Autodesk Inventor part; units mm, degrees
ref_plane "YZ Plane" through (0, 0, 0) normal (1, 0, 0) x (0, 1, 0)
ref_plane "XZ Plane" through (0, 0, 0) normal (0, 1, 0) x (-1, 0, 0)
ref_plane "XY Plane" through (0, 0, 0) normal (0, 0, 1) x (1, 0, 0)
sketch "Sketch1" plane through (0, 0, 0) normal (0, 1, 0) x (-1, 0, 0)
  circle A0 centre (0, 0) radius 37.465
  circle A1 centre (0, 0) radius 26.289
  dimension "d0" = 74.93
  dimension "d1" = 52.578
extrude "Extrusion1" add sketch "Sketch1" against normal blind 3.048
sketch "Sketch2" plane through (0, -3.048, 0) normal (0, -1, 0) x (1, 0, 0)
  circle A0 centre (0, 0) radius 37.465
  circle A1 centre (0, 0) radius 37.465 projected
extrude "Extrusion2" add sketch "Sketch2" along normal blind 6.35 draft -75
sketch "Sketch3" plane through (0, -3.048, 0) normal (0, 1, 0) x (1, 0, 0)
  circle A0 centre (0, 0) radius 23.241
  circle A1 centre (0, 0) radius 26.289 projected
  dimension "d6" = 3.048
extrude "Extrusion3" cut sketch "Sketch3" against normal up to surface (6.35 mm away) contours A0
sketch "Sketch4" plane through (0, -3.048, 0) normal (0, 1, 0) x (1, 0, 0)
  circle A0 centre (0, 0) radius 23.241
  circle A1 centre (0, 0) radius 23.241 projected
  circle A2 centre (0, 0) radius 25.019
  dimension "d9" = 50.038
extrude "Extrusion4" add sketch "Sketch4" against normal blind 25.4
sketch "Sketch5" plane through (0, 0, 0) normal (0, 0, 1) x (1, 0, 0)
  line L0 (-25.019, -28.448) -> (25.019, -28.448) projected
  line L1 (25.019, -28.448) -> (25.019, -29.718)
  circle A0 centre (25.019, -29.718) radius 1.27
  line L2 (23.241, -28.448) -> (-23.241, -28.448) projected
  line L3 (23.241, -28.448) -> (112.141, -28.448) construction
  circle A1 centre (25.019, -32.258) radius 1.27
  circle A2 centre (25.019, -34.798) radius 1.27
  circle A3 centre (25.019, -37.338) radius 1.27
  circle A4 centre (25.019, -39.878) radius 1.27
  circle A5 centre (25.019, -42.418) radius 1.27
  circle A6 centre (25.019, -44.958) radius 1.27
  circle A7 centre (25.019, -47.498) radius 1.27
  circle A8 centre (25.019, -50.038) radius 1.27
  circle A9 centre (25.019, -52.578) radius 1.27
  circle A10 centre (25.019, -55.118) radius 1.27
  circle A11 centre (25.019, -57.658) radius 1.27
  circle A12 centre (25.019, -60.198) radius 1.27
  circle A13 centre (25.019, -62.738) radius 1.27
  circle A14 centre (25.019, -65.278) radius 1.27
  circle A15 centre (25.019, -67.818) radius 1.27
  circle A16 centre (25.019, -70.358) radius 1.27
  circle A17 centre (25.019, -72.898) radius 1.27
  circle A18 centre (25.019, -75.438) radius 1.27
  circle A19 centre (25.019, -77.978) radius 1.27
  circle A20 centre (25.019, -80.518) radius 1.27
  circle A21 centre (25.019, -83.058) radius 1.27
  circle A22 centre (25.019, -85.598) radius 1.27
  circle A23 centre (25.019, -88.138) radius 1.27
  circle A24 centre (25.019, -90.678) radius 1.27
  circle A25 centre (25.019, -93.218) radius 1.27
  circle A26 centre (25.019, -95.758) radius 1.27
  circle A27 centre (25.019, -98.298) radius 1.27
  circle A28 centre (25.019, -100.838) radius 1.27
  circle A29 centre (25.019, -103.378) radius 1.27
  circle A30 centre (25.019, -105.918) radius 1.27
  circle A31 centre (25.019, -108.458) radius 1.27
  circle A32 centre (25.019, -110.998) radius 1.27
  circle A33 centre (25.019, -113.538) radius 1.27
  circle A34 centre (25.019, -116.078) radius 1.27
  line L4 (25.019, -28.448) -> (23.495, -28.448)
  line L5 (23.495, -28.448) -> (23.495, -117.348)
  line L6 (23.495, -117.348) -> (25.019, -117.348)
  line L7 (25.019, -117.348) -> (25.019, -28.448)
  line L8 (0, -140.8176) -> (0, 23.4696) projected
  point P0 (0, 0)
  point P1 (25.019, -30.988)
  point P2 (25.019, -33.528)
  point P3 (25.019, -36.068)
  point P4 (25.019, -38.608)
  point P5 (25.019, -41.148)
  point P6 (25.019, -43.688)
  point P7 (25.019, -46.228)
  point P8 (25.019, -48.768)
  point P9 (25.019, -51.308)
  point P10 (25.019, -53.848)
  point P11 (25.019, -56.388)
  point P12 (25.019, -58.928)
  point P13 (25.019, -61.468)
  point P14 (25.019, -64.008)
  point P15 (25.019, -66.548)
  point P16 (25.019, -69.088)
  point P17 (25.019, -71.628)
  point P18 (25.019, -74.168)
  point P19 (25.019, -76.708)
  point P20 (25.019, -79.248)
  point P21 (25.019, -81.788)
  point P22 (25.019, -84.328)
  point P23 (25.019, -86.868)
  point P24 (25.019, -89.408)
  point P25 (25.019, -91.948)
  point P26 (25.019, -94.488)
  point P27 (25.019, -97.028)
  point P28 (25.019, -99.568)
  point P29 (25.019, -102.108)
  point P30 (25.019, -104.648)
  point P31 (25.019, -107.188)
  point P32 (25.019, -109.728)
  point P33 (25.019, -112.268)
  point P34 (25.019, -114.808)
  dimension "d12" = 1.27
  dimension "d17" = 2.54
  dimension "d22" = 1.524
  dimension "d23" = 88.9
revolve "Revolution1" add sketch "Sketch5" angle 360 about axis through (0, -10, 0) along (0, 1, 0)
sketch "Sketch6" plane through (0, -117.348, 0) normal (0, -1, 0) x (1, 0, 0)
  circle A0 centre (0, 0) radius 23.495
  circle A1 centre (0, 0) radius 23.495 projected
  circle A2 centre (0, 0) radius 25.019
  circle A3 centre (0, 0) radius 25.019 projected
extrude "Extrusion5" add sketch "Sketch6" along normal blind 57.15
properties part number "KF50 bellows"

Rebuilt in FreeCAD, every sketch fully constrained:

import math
import FreeCAD as App
import Part
import Sketcher
Q = App.Units.Quantity

doc = App.newDocument("Part")
params = doc.addObject("Spreadsheet::Sheet", "Params")
for row, (alias, value) in enumerate([
    ("sketch1_diameter", "2.95 in"),
    ("sketch1_diameter2", "2.07 in"),
    ("pad1_length", "0.12 in"),
    ("sketch2_diameter", "2.95 in"),
    ("pad2_length", "0.25 in"),
    ("pad2_taper", "-75 deg"),
    ("sketch3_diameter", "1.83 in"),
    ("pocket1_length", "0.25 in"),
    ("sketch4_diameter", "1.97 in"),
    ("sketch4_diameter2", "1.83 in"),
    ("pad3_length", "1 in"),
    ("sketch5_radius", "0.05 in"),
    ("sketch5_width", "0.06 in"),
    ("revolution_angle", "360 deg"),
    ("sketch6_diameter", "1.97 in"),
    ("sketch6_diameter2", "1.85 in"),
    ("pad4_length", "2.25 in"),
], start=1):
    params.set(f"A{row}", alias)
    params.set(f"B{row}", "=" + value)
    params.setAlias(f"B{row}", alias)

body = doc.addObject("PartDesign::Body", "Body")

# Sketch on XZ plane
sketch1 = doc.addObject("Sketcher::SketchObject", "Sketch")
body.addObject(sketch1)
sketch1.AttachmentSupport = (doc.XZ_Plane, [""])
sketch1.MapMode = "FlatFace"
sketch1.addGeometry(Part.Circle(App.Vector(0, 0, 0), App.Vector(0, 0, 1), 37.465), False)
sketch1.addGeometry(Part.Circle(App.Vector(0, 0, 0), App.Vector(0, 0, 1), 26.289), False)
sketch1.addConstraint(Sketcher.Constraint("Coincident", 0, 3, -1, 1))
sketch1.addConstraint(Sketcher.Constraint("Coincident", 1, 3, -1, 1))
sketch1.addConstraint(Sketcher.Constraint("Diameter", 0, Q("2.95 in")))
sketch1.addConstraint(Sketcher.Constraint("Diameter", 1, Q("2.07 in")))
sketch1.setExpression("Constraints[2]", "Params.sketch1_diameter")
sketch1.setExpression("Constraints[3]", "Params.sketch1_diameter2")
pad1 = doc.addObject("PartDesign::Pad", "Pad")
body.addObject(pad1)
pad1.Profile = sketch1
pad1.setExpression("Length", "Params.pad1_length")

# Sketch on XZ plane
sketch2 = doc.addObject("Sketcher::SketchObject", "Sketch001")
body.addObject(sketch2)
sketch2.AttachmentSupport = (doc.XZ_Plane, [""])
sketch2.MapMode = "FlatFace"
sketch2.AttachmentOffset = App.Placement(App.Vector(0, 0, 0.12 * 25.4), App.Rotation())
sketch2.addGeometry(Part.Circle(App.Vector(0, 0, 0), App.Vector(0, 0, 1), 37.465), False)
sketch2.addConstraint(Sketcher.Constraint("Coincident", 0, 3, -1, 1))
sketch2.addConstraint(Sketcher.Constraint("Diameter", 0, Q("2.95 in")))
sketch2.setExpression("Constraints[1]", "Params.sketch2_diameter")
pad2 = doc.addObject("PartDesign::Pad", "Pad001")
body.addObject(pad2)
pad2.Profile = sketch2
pad2.setExpression("Length", "Params.pad2_length")
pad2.setExpression("TaperAngle", "Params.pad2_taper")

# Sketch on XZ plane
sketch3 = doc.addObject("Sketcher::SketchObject", "Sketch002")
body.addObject(sketch3)
sketch3.AttachmentSupport = (doc.XZ_Plane, [""])
sketch3.MapMode = "FlatFace"
sketch3.AttachmentOffset = App.Placement(App.Vector(0, 0, 0.12 * 25.4), App.Rotation())
sketch3.addGeometry(Part.Circle(App.Vector(0, 0, 0), App.Vector(0, 0, 1), 23.241), False)
sketch3.addConstraint(Sketcher.Constraint("Coincident", 0, 3, -1, 1))
sketch3.addConstraint(Sketcher.Constraint("Diameter", 0, Q("1.83 in")))
sketch3.setExpression("Constraints[1]", "Params.sketch3_diameter")
pocket1 = doc.addObject("PartDesign::Pocket", "Pocket")
body.addObject(pocket1)
pocket1.Profile = sketch3
pocket1.setExpression("Length", "Params.pocket1_length")
pocket1.Reversed = True

# Sketch on XZ plane
sketch4 = doc.addObject("Sketcher::SketchObject", "Sketch003")
body.addObject(sketch4)
sketch4.AttachmentSupport = (doc.XZ_Plane, [""])
sketch4.MapMode = "FlatFace"
sketch4.AttachmentOffset = App.Placement(App.Vector(0, 0, 0.12 * 25.4), App.Rotation())
sketch4.addGeometry(Part.Circle(App.Vector(0, 0, 0), App.Vector(0, 0, 1), 25.019), False)
sketch4.addGeometry(Part.Circle(App.Vector(0, 0, 0), App.Vector(0, 0, 1), 23.241), False)
sketch4.addConstraint(Sketcher.Constraint("Coincident", 0, 3, -1, 1))
sketch4.addConstraint(Sketcher.Constraint("Coincident", 1, 3, -1, 1))
sketch4.addConstraint(Sketcher.Constraint("Diameter", 0, Q("1.97 in")))
sketch4.addConstraint(Sketcher.Constraint("Diameter", 1, Q("1.83 in")))
sketch4.setExpression("Constraints[2]", "Params.sketch4_diameter")
sketch4.setExpression("Constraints[3]", "Params.sketch4_diameter2")
pad3 = doc.addObject("PartDesign::Pad", "Pad002")
body.addObject(pad3)
pad3.Profile = sketch4
pad3.setExpression("Length", "Params.pad3_length")

# Sketch on XY plane
sketch5 = doc.addObject("Sketcher::SketchObject", "Sketch004")
body.addObject(sketch5)
sketch5.AttachmentSupport = (doc.XY_Plane, [""])
sketch5.MapMode = "FlatFace"
sketch5.addGeometry(Part.LineSegment(App.Vector(25.019, -28.448, 0), App.Vector(23.495, -28.448, 0)), False)
sketch5.addGeometry(Part.LineSegment(App.Vector(23.495, -28.448, 0), App.Vector(23.495, -117.348, 0)), False)
sketch5.addGeometry(Part.LineSegment(App.Vector(23.495, -117.348, 0), App.Vector(25.019, -117.348, 0)), False)
sketch5.addGeometry(Part.ArcOfCircle(Part.Circle(App.Vector(25.019, -116.078, 0), App.Vector(0, 0, 1), 1.27), math.radians(-90), math.radians(90)), False)
sketch5.addGeometry(Part.ArcOfCircle(Part.Circle(App.Vector(25.019, -113.538, 0), App.Vector(0, 0, 1), 1.27), math.radians(-90), math.radians(90)), False)
sketch5.addGeometry(Part.ArcOfCircle(Part.Circle(App.Vector(25.019, -110.998, 0), App.Vector(0, 0, 1), 1.27), math.radians(-90), math.radians(90)), False)
sketch5.addGeometry(Part.ArcOfCircle(Part.Circle(App.Vector(25.019, -108.458, 0), App.Vector(0, 0, 1), 1.27), math.radians(-90), math.radians(90)), False)
sketch5.addGeometry(Part.ArcOfCircle(Part.Circle(App.Vector(25.019, -105.918, 0), App.Vector(0, 0, 1), 1.27), math.radians(-90), math.radians(90)), False)
sketch5.addGeometry(Part.ArcOfCircle(Part.Circle(App.Vector(25.019, -103.378, 0), App.Vector(0, 0, 1), 1.27), math.radians(-90), math.radians(90)), False)
sketch5.addGeometry(Part.ArcOfCircle(Part.Circle(App.Vector(25.019, -100.838, 0), App.Vector(0, 0, 1), 1.27), math.radians(-90), math.radians(90)), False)
sketch5.addGeometry(Part.ArcOfCircle(Part.Circle(App.Vector(25.019, -98.298, 0), App.Vector(0, 0, 1), 1.27), math.radians(-90), math.radians(90)), False)
sketch5.addGeometry(Part.ArcOfCircle(Part.Circle(App.Vector(25.019, -95.758, 0), App.Vector(0, 0, 1), 1.27), math.radians(-90), math.radians(90)), False)
sketch5.addGeometry(Part.ArcOfCircle(Part.Circle(App.Vector(25.019, -93.218, 0), App.Vector(0, 0, 1), 1.27), math.radians(-90), math.radians(90)), False)
sketch5.addGeometry(Part.ArcOfCircle(Part.Circle(App.Vector(25.019, -90.678, 0), App.Vector(0, 0, 1), 1.27), math.radians(-90), math.radians(90)), False)
sketch5.addGeometry(Part.ArcOfCircle(Part.Circle(App.Vector(25.019, -88.138, 0), App.Vector(0, 0, 1), 1.27), math.radians(-90), math.radians(90)), False)
sketch5.addGeometry(Part.ArcOfCircle(Part.Circle(App.Vector(25.019, -85.598, 0), App.Vector(0, 0, 1), 1.27), math.radians(-90), math.radians(90)), False)
sketch5.addGeometry(Part.ArcOfCircle(Part.Circle(App.Vector(25.019, -83.058, 0), App.Vector(0, 0, 1), 1.27), math.radians(-90), math.radians(90)), False)
sketch5.addGeometry(Part.ArcOfCircle(Part.Circle(App.Vector(25.019, -80.518, 0), App.Vector(0, 0, 1), 1.27), math.radians(-90), math.radians(90)), False)
sketch5.addGeometry(Part.ArcOfCircle(Part.Circle(App.Vector(25.019, -77.978, 0), App.Vector(0, 0, 1), 1.27), math.radians(-90), math.radians(90)), False)
sketch5.addGeometry(Part.ArcOfCircle(Part.Circle(App.Vector(25.019, -75.438, 0), App.Vector(0, 0, 1), 1.27), math.radians(-90), math.radians(90)), False)
sketch5.addGeometry(Part.ArcOfCircle(Part.Circle(App.Vector(25.019, -72.898, 0), App.Vector(0, 0, 1), 1.27), math.radians(-90), math.radians(90)), False)
sketch5.addGeometry(Part.ArcOfCircle(Part.Circle(App.Vector(25.019, -70.358, 0), App.Vector(0, 0, 1), 1.27), math.radians(-90), math.radians(90)), False)
sketch5.addGeometry(Part.ArcOfCircle(Part.Circle(App.Vector(25.019, -67.818, 0), App.Vector(0, 0, 1), 1.27), math.radians(-90), math.radians(90)), False)
sketch5.addGeometry(Part.ArcOfCircle(Part.Circle(App.Vector(25.019, -65.278, 0), App.Vector(0, 0, 1), 1.27), math.radians(-90), math.radians(90)), False)
sketch5.addGeometry(Part.ArcOfCircle(Part.Circle(App.Vector(25.019, -62.738, 0), App.Vector(0, 0, 1), 1.27), math.radians(-90), math.radians(90)), False)
sketch5.addGeometry(Part.ArcOfCircle(Part.Circle(App.Vector(25.019, -60.198, 0), App.Vector(0, 0, 1), 1.27), math.radians(-90), math.radians(90)), False)
sketch5.addGeometry(Part.ArcOfCircle(Part.Circle(App.Vector(25.019, -57.658, 0), App.Vector(0, 0, 1), 1.27), math.radians(-90), math.radians(90)), False)
sketch5.addGeometry(Part.ArcOfCircle(Part.Circle(App.Vector(25.019, -55.118, 0), App.Vector(0, 0, 1), 1.27), math.radians(-90), math.radians(90)), False)
sketch5.addGeometry(Part.ArcOfCircle(Part.Circle(App.Vector(25.019, -52.578, 0), App.Vector(0, 0, 1), 1.27), math.radians(-90), math.radians(90)), False)
sketch5.addGeometry(Part.ArcOfCircle(Part.Circle(App.Vector(25.019, -50.038, 0), App.Vector(0, 0, 1), 1.27), math.radians(-90), math.radians(90)), False)
sketch5.addGeometry(Part.ArcOfCircle(Part.Circle(App.Vector(25.019, -47.498, 0), App.Vector(0, 0, 1), 1.27), math.radians(-90), math.radians(90)), False)
sketch5.addGeometry(Part.ArcOfCircle(Part.Circle(App.Vector(25.019, -44.958, 0), App.Vector(0, 0, 1), 1.27), math.radians(-90), math.radians(90)), False)
sketch5.addGeometry(Part.ArcOfCircle(Part.Circle(App.Vector(25.019, -42.418, 0), App.Vector(0, 0, 1), 1.27), math.radians(-90), math.radians(90)), False)
sketch5.addGeometry(Part.ArcOfCircle(Part.Circle(App.Vector(25.019, -39.878, 0), App.Vector(0, 0, 1), 1.27), math.radians(-90), math.radians(90)), False)
sketch5.addGeometry(Part.ArcOfCircle(Part.Circle(App.Vector(25.019, -37.338, 0), App.Vector(0, 0, 1), 1.27), math.radians(-90), math.radians(90)), False)
sketch5.addGeometry(Part.ArcOfCircle(Part.Circle(App.Vector(25.019, -34.798, 0), App.Vector(0, 0, 1), 1.27), math.radians(-90), math.radians(90)), False)
sketch5.addGeometry(Part.ArcOfCircle(Part.Circle(App.Vector(25.019, -32.258, 0), App.Vector(0, 0, 1), 1.27), math.radians(-90), math.radians(90)), False)
sketch5.addGeometry(Part.ArcOfCircle(Part.Circle(App.Vector(25.019, -29.718, 0), App.Vector(0, 0, 1), 1.27), math.radians(-90), math.radians(90)), False)
sketch5.addConstraint(Sketcher.Constraint("Coincident", 0, 2, 1, 1))
sketch5.addConstraint(Sketcher.Constraint("Coincident", 1, 2, 2, 1))
sketch5.addConstraint(Sketcher.Constraint("Tangent", 2, 2, 3, 1))
sketch5.addConstraint(Sketcher.Constraint("Tangent", 3, 2, 4, 1))
sketch5.addConstraint(Sketcher.Constraint("Tangent", 4, 2, 5, 1))
sketch5.addConstraint(Sketcher.Constraint("Tangent", 5, 2, 6, 1))
sketch5.addConstraint(Sketcher.Constraint("Tangent", 6, 2, 7, 1))
sketch5.addConstraint(Sketcher.Constraint("Tangent", 7, 2, 8, 1))
sketch5.addConstraint(Sketcher.Constraint("Tangent", 8, 2, 9, 1))
sketch5.addConstraint(Sketcher.Constraint("Tangent", 9, 2, 10, 1))
sketch5.addConstraint(Sketcher.Constraint("Tangent", 10, 2, 11, 1))
sketch5.addConstraint(Sketcher.Constraint("Tangent", 11, 2, 12, 1))
sketch5.addConstraint(Sketcher.Constraint("Tangent", 12, 2, 13, 1))
sketch5.addConstraint(Sketcher.Constraint("Tangent", 13, 2, 14, 1))
sketch5.addConstraint(Sketcher.Constraint("Tangent", 14, 2, 15, 1))
sketch5.addConstraint(Sketcher.Constraint("Tangent", 15, 2, 16, 1))
sketch5.addConstraint(Sketcher.Constraint("Tangent", 16, 2, 17, 1))
sketch5.addConstraint(Sketcher.Constraint("Tangent", 17, 2, 18, 1))
sketch5.addConstraint(Sketcher.Constraint("Tangent", 18, 2, 19, 1))
sketch5.addConstraint(Sketcher.Constraint("Tangent", 19, 2, 20, 1))
sketch5.addConstraint(Sketcher.Constraint("Tangent", 20, 2, 21, 1))
sketch5.addConstraint(Sketcher.Constraint("Tangent", 21, 2, 22, 1))
sketch5.addConstraint(Sketcher.Constraint("Tangent", 22, 2, 23, 1))
sketch5.addConstraint(Sketcher.Constraint("Tangent", 23, 2, 24, 1))
sketch5.addConstraint(Sketcher.Constraint("Tangent", 24, 2, 25, 1))
sketch5.addConstraint(Sketcher.Constraint("Tangent", 25, 2, 26, 1))
sketch5.addConstraint(Sketcher.Constraint("Tangent", 26, 2, 27, 1))
sketch5.addConstraint(Sketcher.Constraint("Tangent", 27, 2, 28, 1))
sketch5.addConstraint(Sketcher.Constraint("Tangent", 28, 2, 29, 1))
sketch5.addConstraint(Sketcher.Constraint("Tangent", 29, 2, 30, 1))
sketch5.addConstraint(Sketcher.Constraint("Tangent", 30, 2, 31, 1))
sketch5.addConstraint(Sketcher.Constraint("Tangent", 31, 2, 32, 1))
sketch5.addConstraint(Sketcher.Constraint("Tangent", 32, 2, 33, 1))
sketch5.addConstraint(Sketcher.Constraint("Tangent", 33, 2, 34, 1))
sketch5.addConstraint(Sketcher.Constraint("Tangent", 34, 2, 35, 1))
sketch5.addConstraint(Sketcher.Constraint("Tangent", 35, 2, 36, 1))
sketch5.addConstraint(Sketcher.Constraint("Tangent", 36, 2, 37, 1))
sketch5.addConstraint(Sketcher.Constraint("Tangent", 37, 2, 0, 1))
sketch5.addConstraint(Sketcher.Constraint("Horizontal", 0))
sketch5.addConstraint(Sketcher.Constraint("Vertical", 1))
sketch5.addConstraint(Sketcher.Constraint("Horizontal", 2))
sketch5.addConstraint(Sketcher.Constraint("Equal", 3, 4))
sketch5.addConstraint(Sketcher.Constraint("Equal", 4, 5))
sketch5.addConstraint(Sketcher.Constraint("Equal", 5, 6))
sketch5.addConstraint(Sketcher.Constraint("Equal", 6, 7))
sketch5.addConstraint(Sketcher.Constraint("Equal", 7, 8))
sketch5.addConstraint(Sketcher.Constraint("Equal", 8, 9))
sketch5.addConstraint(Sketcher.Constraint("Equal", 9, 10))
sketch5.addConstraint(Sketcher.Constraint("Equal", 10, 11))
sketch5.addConstraint(Sketcher.Constraint("Equal", 11, 12))
sketch5.addConstraint(Sketcher.Constraint("Equal", 12, 13))
sketch5.addConstraint(Sketcher.Constraint("Equal", 13, 14))
sketch5.addConstraint(Sketcher.Constraint("Equal", 14, 15))
sketch5.addConstraint(Sketcher.Constraint("Equal", 15, 16))
sketch5.addConstraint(Sketcher.Constraint("Equal", 16, 17))
sketch5.addConstraint(Sketcher.Constraint("Equal", 17, 18))
sketch5.addConstraint(Sketcher.Constraint("Equal", 18, 19))
sketch5.addConstraint(Sketcher.Constraint("Equal", 19, 20))
sketch5.addConstraint(Sketcher.Constraint("Equal", 20, 21))
sketch5.addConstraint(Sketcher.Constraint("Equal", 21, 22))
sketch5.addConstraint(Sketcher.Constraint("Equal", 22, 23))
sketch5.addConstraint(Sketcher.Constraint("Equal", 23, 24))
sketch5.addConstraint(Sketcher.Constraint("Equal", 24, 25))
sketch5.addConstraint(Sketcher.Constraint("Equal", 25, 26))
sketch5.addConstraint(Sketcher.Constraint("Equal", 26, 27))
sketch5.addConstraint(Sketcher.Constraint("Equal", 27, 28))
sketch5.addConstraint(Sketcher.Constraint("Equal", 28, 29))
sketch5.addConstraint(Sketcher.Constraint("Equal", 29, 30))
sketch5.addConstraint(Sketcher.Constraint("Equal", 30, 31))
sketch5.addConstraint(Sketcher.Constraint("Equal", 31, 32))
sketch5.addConstraint(Sketcher.Constraint("Equal", 32, 33))
sketch5.addConstraint(Sketcher.Constraint("Equal", 33, 34))
sketch5.addConstraint(Sketcher.Constraint("Equal", 34, 35))
sketch5.addConstraint(Sketcher.Constraint("Equal", 35, 36))
sketch5.addConstraint(Sketcher.Constraint("Equal", 36, 37))
sketch5.addConstraint(Sketcher.Constraint("Vertical", 3, 3, 4, 3))
sketch5.addConstraint(Sketcher.Constraint("Vertical", 4, 3, 5, 3))
sketch5.addConstraint(Sketcher.Constraint("Vertical", 5, 3, 6, 3))
sketch5.addConstraint(Sketcher.Constraint("Vertical", 6, 3, 7, 3))
sketch5.addConstraint(Sketcher.Constraint("Vertical", 7, 3, 8, 3))
sketch5.addConstraint(Sketcher.Constraint("Vertical", 8, 3, 9, 3))
sketch5.addConstraint(Sketcher.Constraint("Vertical", 9, 3, 10, 3))
sketch5.addConstraint(Sketcher.Constraint("Vertical", 10, 3, 11, 3))
sketch5.addConstraint(Sketcher.Constraint("Vertical", 11, 3, 12, 3))
sketch5.addConstraint(Sketcher.Constraint("Vertical", 12, 3, 13, 3))
sketch5.addConstraint(Sketcher.Constraint("Vertical", 13, 3, 14, 3))
sketch5.addConstraint(Sketcher.Constraint("Vertical", 14, 3, 15, 3))
sketch5.addConstraint(Sketcher.Constraint("Vertical", 15, 3, 16, 3))
sketch5.addConstraint(Sketcher.Constraint("Vertical", 16, 3, 17, 3))
sketch5.addConstraint(Sketcher.Constraint("Vertical", 17, 3, 18, 3))
sketch5.addConstraint(Sketcher.Constraint("Vertical", 18, 3, 19, 3))
sketch5.addConstraint(Sketcher.Constraint("Vertical", 19, 3, 20, 3))
sketch5.addConstraint(Sketcher.Constraint("Vertical", 20, 3, 21, 3))
sketch5.addConstraint(Sketcher.Constraint("Vertical", 21, 3, 22, 3))
sketch5.addConstraint(Sketcher.Constraint("Vertical", 22, 3, 23, 3))
sketch5.addConstraint(Sketcher.Constraint("Vertical", 23, 3, 24, 3))
sketch5.addConstraint(Sketcher.Constraint("Vertical", 24, 3, 25, 3))
sketch5.addConstraint(Sketcher.Constraint("Vertical", 25, 3, 26, 3))
sketch5.addConstraint(Sketcher.Constraint("Vertical", 26, 3, 27, 3))
sketch5.addConstraint(Sketcher.Constraint("Vertical", 27, 3, 28, 3))
sketch5.addConstraint(Sketcher.Constraint("Vertical", 28, 3, 29, 3))
sketch5.addConstraint(Sketcher.Constraint("Vertical", 29, 3, 30, 3))
sketch5.addConstraint(Sketcher.Constraint("Vertical", 30, 3, 31, 3))
sketch5.addConstraint(Sketcher.Constraint("Vertical", 31, 3, 32, 3))
sketch5.addConstraint(Sketcher.Constraint("Vertical", 32, 3, 33, 3))
sketch5.addConstraint(Sketcher.Constraint("Vertical", 33, 3, 34, 3))
sketch5.addConstraint(Sketcher.Constraint("Vertical", 34, 3, 35, 3))
sketch5.addConstraint(Sketcher.Constraint("Vertical", 35, 3, 36, 3))
sketch5.addConstraint(Sketcher.Constraint("Vertical", 36, 3, 37, 3))
sketch5.addConstraint(Sketcher.Constraint("Radius", 3, Q("0.05 in")))
sketch5.addConstraint(Sketcher.Constraint("DistanceX", 0, 2, 0, 1, Q("0.06 in")))
sketch5.addConstraint(Sketcher.Constraint("DistanceY", 3, 3, -1, 1, Q("4.57 in")))
sketch5.addConstraint(Sketcher.Constraint("DistanceX", -1, 1, 3, 3, Q("0.985 in")))
sketch5.setExpression("Constraints[109]", "Params.sketch5_radius")
sketch5.setExpression("Constraints[110]", "Params.sketch5_width")
revolution = doc.addObject("PartDesign::Revolution", "Revolution")
body.addObject(revolution)
revolution.Profile = sketch5
revolution.ReferenceAxis = (sketch5, ["V_Axis"])
revolution.setExpression("Angle", "Params.revolution_angle")

# Sketch on XZ plane
sketch6 = doc.addObject("Sketcher::SketchObject", "Sketch005")
body.addObject(sketch6)
sketch6.AttachmentSupport = (doc.XZ_Plane, [""])
sketch6.MapMode = "FlatFace"
sketch6.AttachmentOffset = App.Placement(App.Vector(0, 0, 4.62 * 25.4), App.Rotation())
sketch6.addGeometry(Part.Circle(App.Vector(0, 0, 0), App.Vector(0, 0, 1), 25.019), False)
sketch6.addGeometry(Part.Circle(App.Vector(0, 0, 0), App.Vector(0, 0, 1), 23.495), False)
sketch6.addConstraint(Sketcher.Constraint("Coincident", 0, 3, -1, 1))
sketch6.addConstraint(Sketcher.Constraint("Coincident", 1, 3, -1, 1))
sketch6.addConstraint(Sketcher.Constraint("Diameter", 0, Q("1.97 in")))
sketch6.addConstraint(Sketcher.Constraint("Diameter", 1, Q("1.85 in")))
sketch6.setExpression("Constraints[2]", "Params.sketch6_diameter")
sketch6.setExpression("Constraints[3]", "Params.sketch6_diameter2")
pad4 = doc.addObject("PartDesign::Pad", "Pad003")
body.addObject(pad4)
pad4.Profile = sketch6
pad4.setExpression("Length", "Params.pad4_length")

doc.recompute()
